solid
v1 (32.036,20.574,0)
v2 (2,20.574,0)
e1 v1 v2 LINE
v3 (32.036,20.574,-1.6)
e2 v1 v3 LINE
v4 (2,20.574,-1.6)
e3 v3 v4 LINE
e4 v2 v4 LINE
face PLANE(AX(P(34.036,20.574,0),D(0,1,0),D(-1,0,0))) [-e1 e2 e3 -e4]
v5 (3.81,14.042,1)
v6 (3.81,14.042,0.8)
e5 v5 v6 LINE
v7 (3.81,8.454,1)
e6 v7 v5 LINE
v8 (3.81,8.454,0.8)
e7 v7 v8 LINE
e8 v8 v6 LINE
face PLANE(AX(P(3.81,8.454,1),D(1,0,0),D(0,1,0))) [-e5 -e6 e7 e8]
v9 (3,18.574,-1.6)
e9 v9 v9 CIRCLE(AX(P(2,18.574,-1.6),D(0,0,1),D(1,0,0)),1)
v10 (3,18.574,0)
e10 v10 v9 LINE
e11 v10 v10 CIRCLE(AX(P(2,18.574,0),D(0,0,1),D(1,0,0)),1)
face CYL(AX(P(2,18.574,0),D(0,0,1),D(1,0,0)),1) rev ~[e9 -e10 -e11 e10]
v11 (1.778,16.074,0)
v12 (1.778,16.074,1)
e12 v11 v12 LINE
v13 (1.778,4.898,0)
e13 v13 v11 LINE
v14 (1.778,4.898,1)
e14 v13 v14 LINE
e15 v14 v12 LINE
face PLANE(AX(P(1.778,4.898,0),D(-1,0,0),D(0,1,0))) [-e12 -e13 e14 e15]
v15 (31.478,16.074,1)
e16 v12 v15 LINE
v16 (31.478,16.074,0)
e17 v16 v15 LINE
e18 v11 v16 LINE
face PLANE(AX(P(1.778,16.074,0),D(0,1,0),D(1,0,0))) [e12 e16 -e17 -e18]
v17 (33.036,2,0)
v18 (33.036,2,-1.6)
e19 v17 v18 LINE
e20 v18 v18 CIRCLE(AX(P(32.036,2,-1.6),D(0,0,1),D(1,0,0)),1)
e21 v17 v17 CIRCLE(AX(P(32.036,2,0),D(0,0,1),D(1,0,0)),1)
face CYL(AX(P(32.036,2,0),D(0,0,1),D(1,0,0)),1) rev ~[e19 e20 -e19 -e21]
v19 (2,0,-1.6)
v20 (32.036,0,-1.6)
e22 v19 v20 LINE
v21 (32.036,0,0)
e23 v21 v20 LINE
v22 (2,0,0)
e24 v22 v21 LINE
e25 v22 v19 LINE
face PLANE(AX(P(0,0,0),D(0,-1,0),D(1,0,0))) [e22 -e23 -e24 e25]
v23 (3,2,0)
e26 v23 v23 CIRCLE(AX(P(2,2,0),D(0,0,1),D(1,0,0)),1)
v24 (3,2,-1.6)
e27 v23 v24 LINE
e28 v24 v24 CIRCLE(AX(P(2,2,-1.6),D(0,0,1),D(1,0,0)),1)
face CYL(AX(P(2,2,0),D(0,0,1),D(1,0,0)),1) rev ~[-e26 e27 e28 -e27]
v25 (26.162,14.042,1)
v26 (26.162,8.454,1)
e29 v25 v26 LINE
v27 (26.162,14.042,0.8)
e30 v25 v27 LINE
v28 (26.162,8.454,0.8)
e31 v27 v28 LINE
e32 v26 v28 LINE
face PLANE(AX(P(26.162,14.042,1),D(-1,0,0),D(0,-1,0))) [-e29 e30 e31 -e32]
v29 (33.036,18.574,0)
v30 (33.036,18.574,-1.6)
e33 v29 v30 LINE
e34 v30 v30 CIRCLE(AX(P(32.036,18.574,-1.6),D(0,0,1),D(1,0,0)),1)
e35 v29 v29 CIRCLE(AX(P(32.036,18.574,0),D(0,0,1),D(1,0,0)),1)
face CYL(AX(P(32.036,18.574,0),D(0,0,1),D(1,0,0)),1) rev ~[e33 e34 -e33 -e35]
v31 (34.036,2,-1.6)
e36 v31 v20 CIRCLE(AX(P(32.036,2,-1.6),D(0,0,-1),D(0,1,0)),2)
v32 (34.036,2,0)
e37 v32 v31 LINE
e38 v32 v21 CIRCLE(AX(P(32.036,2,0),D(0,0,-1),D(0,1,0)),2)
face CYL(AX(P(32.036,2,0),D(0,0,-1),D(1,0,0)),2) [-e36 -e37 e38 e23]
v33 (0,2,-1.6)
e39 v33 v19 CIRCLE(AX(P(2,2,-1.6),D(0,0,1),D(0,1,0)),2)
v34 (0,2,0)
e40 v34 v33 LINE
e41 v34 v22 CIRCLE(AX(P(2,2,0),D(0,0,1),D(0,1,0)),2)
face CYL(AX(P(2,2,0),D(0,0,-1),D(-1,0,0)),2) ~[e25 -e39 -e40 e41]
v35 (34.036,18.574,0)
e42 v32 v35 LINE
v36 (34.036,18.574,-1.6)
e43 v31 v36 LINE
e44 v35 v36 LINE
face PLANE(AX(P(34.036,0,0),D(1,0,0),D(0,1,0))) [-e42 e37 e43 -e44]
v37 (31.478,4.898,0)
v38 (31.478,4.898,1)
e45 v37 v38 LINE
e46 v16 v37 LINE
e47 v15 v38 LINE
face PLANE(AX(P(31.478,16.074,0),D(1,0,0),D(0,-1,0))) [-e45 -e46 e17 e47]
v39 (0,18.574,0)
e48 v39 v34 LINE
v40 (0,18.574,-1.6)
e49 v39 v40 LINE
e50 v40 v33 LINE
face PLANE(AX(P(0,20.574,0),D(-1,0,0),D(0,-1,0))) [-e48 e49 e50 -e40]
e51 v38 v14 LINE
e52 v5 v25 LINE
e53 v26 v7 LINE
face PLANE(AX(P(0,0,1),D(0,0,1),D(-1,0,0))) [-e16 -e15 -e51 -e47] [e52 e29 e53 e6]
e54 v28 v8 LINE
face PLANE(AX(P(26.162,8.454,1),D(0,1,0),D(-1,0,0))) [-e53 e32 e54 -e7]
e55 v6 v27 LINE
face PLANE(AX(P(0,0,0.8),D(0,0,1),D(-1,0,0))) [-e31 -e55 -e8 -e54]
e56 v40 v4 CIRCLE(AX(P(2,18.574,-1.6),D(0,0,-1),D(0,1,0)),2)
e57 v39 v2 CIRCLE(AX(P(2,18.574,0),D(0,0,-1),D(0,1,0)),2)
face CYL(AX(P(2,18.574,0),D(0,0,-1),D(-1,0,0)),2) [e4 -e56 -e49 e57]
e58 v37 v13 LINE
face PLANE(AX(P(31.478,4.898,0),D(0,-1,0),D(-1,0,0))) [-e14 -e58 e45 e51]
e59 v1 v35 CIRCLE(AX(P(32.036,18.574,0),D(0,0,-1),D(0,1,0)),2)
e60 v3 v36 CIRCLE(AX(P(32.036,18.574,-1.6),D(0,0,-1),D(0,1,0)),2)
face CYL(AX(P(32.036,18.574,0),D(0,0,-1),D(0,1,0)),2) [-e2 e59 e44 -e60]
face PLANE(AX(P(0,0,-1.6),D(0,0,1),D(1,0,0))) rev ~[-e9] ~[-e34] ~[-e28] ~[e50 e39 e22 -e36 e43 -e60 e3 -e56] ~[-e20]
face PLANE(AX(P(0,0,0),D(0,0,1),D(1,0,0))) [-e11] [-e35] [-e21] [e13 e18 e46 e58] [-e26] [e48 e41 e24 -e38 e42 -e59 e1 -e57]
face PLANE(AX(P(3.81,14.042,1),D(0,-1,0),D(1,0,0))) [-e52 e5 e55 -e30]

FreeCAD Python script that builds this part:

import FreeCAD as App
import Part
import Sketcher

V = App.Vector
Q = App.Units.Quantity


def edges_at(feature, points):
    """Names of the edges that pass closest to the given points."""
    edges = feature.Shape.Edges
    near = lambda p: min(range(len(edges)), key=lambda i: edges[i].distToShape(Part.Vertex(*p))[0])
    return sorted({f"Edge{near(p) + 1}" for p in points})


def add_polygon(sketch, points):
    """Adds a closed chain of lines whose ends are joined by coincident constraints."""
    first, n = sketch.GeometryCount, len(points)
    for a, b in zip(points, points[1:] + points[:1]):
        sketch.addGeometry(Part.LineSegment(App.Vector(*a, 0), App.Vector(*b, 0)), False)
    for i in range(n):
        sketch.addConstraint(Sketcher.Constraint("Coincident", first + i, 2, first + (i + 1) % n, 1))

doc = App.newDocument("Part")
body = doc.addObject("PartDesign::Body", "Body")

# Sketch on XY plane
sketch1 = doc.addObject("Sketcher::SketchObject", "Sketch")
body.addObject(sketch1)
sketch1.AttachmentSupport = (doc.XY_Plane, [""])
sketch1.MapMode = "FlatFace"
add_polygon(sketch1, [(0, 20.6), (0, 0), (34, 0), (34, 20.6)])  # lines 0-3
sketch1.addGeometry(Part.Circle(V(2, 2, 0), V(0, 0, 1), 1), False)  # 4
sketch1.addGeometry(Part.Circle(V(32, 2, 0), V(0, 0, 1), 1), False)  # 5
sketch1.addGeometry(Part.Circle(V(2, 18.6, 0), V(0, 0, 1), 1), False)  # 6
sketch1.addGeometry(Part.Circle(V(32, 18.6, 0), V(0, 0, 1), 1), False)  # 7
sketch1.addConstraint([
    Sketcher.Constraint("Vertical", 0),
    Sketcher.Constraint("Horizontal", 1),
    Sketcher.Constraint("Vertical", 2),
    Sketcher.Constraint("Horizontal", 3),
    Sketcher.Constraint("Coincident", 0, 2, -1, 1),
    Sketcher.Constraint("Equal", 4, 5),
    Sketcher.Constraint("Equal", 5, 6),
    Sketcher.Constraint("Equal", 6, 7),
    Sketcher.Constraint("Horizontal", 4, 3, 5, 3),
    Sketcher.Constraint("Horizontal", 6, 3, 7, 3),
    Sketcher.Constraint("Vertical", 4, 3, 6, 3),
    Sketcher.Constraint("Vertical", 5, 3, 7, 3),
    Sketcher.Constraint("DistanceX", 1, 1, 1, 2, Q("1.34 in")),
    Sketcher.Constraint("DistanceY", 0, 2, 0, 1, Q("0.81 in")),
    Sketcher.Constraint("Diameter", 4, Q("2 mm")),
    Sketcher.Constraint("DistanceX", -1, 1, 4, 3, Q("2 mm")),
    Sketcher.Constraint("DistanceY", -1, 1, 4, 3, Q("2 mm")),
    Sketcher.Constraint("DistanceX", 5, 3, 1, 2, Q("2 mm")),
    Sketcher.Constraint("DistanceY", 7, 3, 2, 2, Q("2 mm")),
])
pad1 = doc.addObject("PartDesign::Pad", "Pad")
body.addObject(pad1)
pad1.Profile = sketch1
pad1.Length = Q("0.0629921 in")
pad1.Reversed = True
doc.recompute()

fillet = doc.addObject("PartDesign::Fillet", "Fillet")
body.addObject(fillet)
fillet.Base = (pad1, edges_at(pad1, [
    (0, 0, -0.8),
    (0, 20.574, -0.8),
    (34.036, 20.574, -0.8),
    (34.036, 0, -0.8),
]))
fillet.Radius = 2

# Sketch on XY plane
sketch2 = doc.addObject("Sketcher::SketchObject", "Sketch001")
body.addObject(sketch2)
sketch2.AttachmentSupport = (doc.XY_Plane, [""])
sketch2.MapMode = "FlatFace"
add_polygon(sketch2, [(31, 16), (2, 16), (2, 5), (31, 5)])  # lines 0-3
sketch2.addConstraint([
    Sketcher.Constraint("Horizontal", 0),
    Sketcher.Constraint("Vertical", 1),
    Sketcher.Constraint("Horizontal", 2),
    Sketcher.Constraint("Vertical", 3),
    Sketcher.Constraint("DistanceY", 1, 2, 1, 1, Q("0.44 in")),
    Sketcher.Constraint("DistanceX", -1, 1, 0, 2, Q("0.07 in")),
    Sketcher.Constraint("DistanceX", 0, 2, 0, 1, Q("1.1693 in")),
    Sketcher.Constraint("DistanceY", -1, 1, 0, 2, Q("16.074 mm")),
])
pad2 = doc.addObject("PartDesign::Pad", "Pad001")
body.addObject(pad2)
pad2.Profile = sketch2
pad2.Length = 1

# Sketch on XY plane
sketch3 = doc.addObject("Sketcher::SketchObject", "Sketch002")
body.addObject(sketch3)
sketch3.AttachmentSupport = (doc.XY_Plane, [""])
sketch3.MapMode = "FlatFace"
sketch3.AttachmentOffset = App.Placement(V(0, 0, 1), App.Rotation())
add_polygon(sketch3, [(26, 14), (4, 14), (4, 8), (26, 8)])  # lines 0-3
sketch3.addConstraint([
    Sketcher.Constraint("Horizontal", 0),
    Sketcher.Constraint("Vertical", 1),
    Sketcher.Constraint("Horizontal", 2),
    Sketcher.Constraint("Vertical", 3),
    Sketcher.Constraint("DistanceX", 0, 2, 0, 1, Q("0.88 in")),
    Sketcher.Constraint("DistanceY", 1, 2, 1, 1, Q("0.22 in")),
    Sketcher.Constraint("DistanceX", -1, 1, 0, 2, Q("0.15 in")),
    Sketcher.Constraint("DistanceY", -1, 1, 0, 2, Q("14.042 mm")),
])
pocket1 = doc.addObject("PartDesign::Pocket", "Pocket")
body.addObject(pocket1)
pocket1.Profile = sketch3
pocket1.Length = 0.2

doc.recompute()
